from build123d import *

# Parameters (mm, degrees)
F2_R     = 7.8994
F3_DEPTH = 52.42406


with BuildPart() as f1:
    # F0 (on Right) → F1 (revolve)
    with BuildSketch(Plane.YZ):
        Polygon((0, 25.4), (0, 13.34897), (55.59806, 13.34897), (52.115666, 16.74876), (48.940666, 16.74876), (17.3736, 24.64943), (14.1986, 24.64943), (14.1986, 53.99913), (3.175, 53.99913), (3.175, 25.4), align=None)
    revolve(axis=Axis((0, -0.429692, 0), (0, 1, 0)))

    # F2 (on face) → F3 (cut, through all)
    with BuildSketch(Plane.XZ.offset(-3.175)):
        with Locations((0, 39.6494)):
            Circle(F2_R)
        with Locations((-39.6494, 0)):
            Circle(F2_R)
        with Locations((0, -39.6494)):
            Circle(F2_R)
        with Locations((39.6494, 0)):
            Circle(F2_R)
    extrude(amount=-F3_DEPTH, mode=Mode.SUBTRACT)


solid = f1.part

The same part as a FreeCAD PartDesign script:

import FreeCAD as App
import Part
import Sketcher
from FreeCAD import Vector
Q = App.Units.Quantity

doc = App.newDocument("Part")
body = doc.addObject("PartDesign::Body", "Body")

# Sketch on YZ plane
sketch1 = body.newObject("Sketcher::SketchObject", "Sketch")
sketch1.AttachmentSupport = (doc.getObject("YZ_Plane"), [""])
sketch1.MapMode = "FlatFace"
sketch1.addGeometry(Part.LineSegment(Vector(0, 25.4, 0), Vector(0, 13.3, 0)), False)
sketch1.addGeometry(Part.LineSegment(Vector(0, 13.3, 0), Vector(55.6, 13.3, 0)), False)
sketch1.addGeometry(Part.LineSegment(Vector(55.6, 13.3, 0), Vector(52.1, 16.7, 0)), False)
sketch1.addGeometry(Part.LineSegment(Vector(52.1, 16.7, 0), Vector(48.9, 16.7, 0)), False)
sketch1.addGeometry(Part.LineSegment(Vector(48.9, 16.7, 0), Vector(17.4, 24.6, 0)), False)
sketch1.addGeometry(Part.LineSegment(Vector(17.4, 24.6, 0), Vector(14.2, 24.6, 0)), False)
sketch1.addGeometry(Part.LineSegment(Vector(14.2, 24.6, 0), Vector(14.2, 54, 0)), False)
sketch1.addGeometry(Part.LineSegment(Vector(14.2, 54, 0), Vector(3.2, 54, 0)), False)
sketch1.addGeometry(Part.LineSegment(Vector(3.2, 54, 0), Vector(3.2, 25.4, 0)), False)
sketch1.addGeometry(Part.LineSegment(Vector(3.2, 25.4, 0), Vector(0, 25.4, 0)), False)
sketch1.addConstraint(Sketcher.Constraint("Coincident", 0, 2, 1, 1))
sketch1.addConstraint(Sketcher.Constraint("Coincident", 1, 2, 2, 1))
sketch1.addConstraint(Sketcher.Constraint("Coincident", 2, 2, 3, 1))
sketch1.addConstraint(Sketcher.Constraint("Coincident", 3, 2, 4, 1))
sketch1.addConstraint(Sketcher.Constraint("Coincident", 4, 2, 5, 1))
sketch1.addConstraint(Sketcher.Constraint("Coincident", 5, 2, 6, 1))
sketch1.addConstraint(Sketcher.Constraint("Coincident", 6, 2, 7, 1))
sketch1.addConstraint(Sketcher.Constraint("Coincident", 7, 2, 8, 1))
sketch1.addConstraint(Sketcher.Constraint("Coincident", 8, 2, 9, 1))
sketch1.addConstraint(Sketcher.Constraint("Coincident", 9, 2, 0, 1))
sketch1.addConstraint(Sketcher.Constraint("Vertical", 0))
sketch1.addConstraint(Sketcher.Constraint("Horizontal", 1))
sketch1.addConstraint(Sketcher.Constraint("Horizontal", 3))
sketch1.addConstraint(Sketcher.Constraint("Horizontal", 5))
sketch1.addConstraint(Sketcher.Constraint("Vertical", 6))
sketch1.addConstraint(Sketcher.Constraint("Horizontal", 7))
sketch1.addConstraint(Sketcher.Constraint("Vertical", 8))
sketch1.addConstraint(Sketcher.Constraint("Horizontal", 9))
sketch1.addConstraint(Sketcher.Constraint("PointOnObject", 0, 2, -2))
sketch1.addConstraint(Sketcher.Constraint("Equal", 3, 5))
sketch1.addConstraint(Sketcher.Constraint("Equal", 5, 9))
sketch1.addConstraint(Sketcher.Constraint("DistanceY", -1, 1, 8, 2, Q("1 in")))
sketch1.addConstraint(Sketcher.Constraint("DistanceX", 3, 2, 3, 1, Q("0.125 in")))
sketch1.addConstraint(Sketcher.Constraint("DistanceX", 7, 2, 7, 1, Q("0.434 in")))
sketch1.addConstraint(Sketcher.Constraint("DistanceX", 1, 1, 1, 2, Q("2.1889 in")))
sketch1.addConstraint(Sketcher.Constraint("DistanceY", 6, 1, 6, 2, Q("1.1555 in")))
sketch1.addConstraint(Sketcher.Constraint("DistanceY", -1, 1, 2, 2, Q("0.6594 in")))
sketch1.addConstraint(Sketcher.Constraint("DistanceY", 0, 2, 4, 2, Q("0.4449 in")))
sketch1.addConstraint(Sketcher.Constraint("DistanceY", 0, 2, 0, 1, Q("12.05103 mm")))
sketch1.addConstraint(Sketcher.Constraint("Distance", 2, Q("4.866789 mm")))
revolution = body.newObject("PartDesign::Revolution", "Revolution")
revolution.Profile = sketch1
revolution.ReferenceAxis = (sketch1, ["H_Axis"])
revolution.Angle = 360

# Sketch on XZ plane
sketch2 = body.newObject("Sketcher::SketchObject", "Sketch001")
sketch2.AttachmentSupport = (doc.getObject("XZ_Plane"), [""])
sketch2.MapMode = "FlatFace"
sketch2.AttachmentOffset = App.Placement(Vector(0, 0, -0.125 * 25.4), App.Rotation())
sketch2.addGeometry(Part.Circle(Vector(0, 40, 0), Vector(0, 0, 1), 8), False)
sketch2.addGeometry(Part.Circle(Vector(-40, 0, 0), Vector(0, 0, 1), 8), False)
sketch2.addGeometry(Part.Circle(Vector(0, -40, 0), Vector(0, 0, 1), 8), False)
sketch2.addGeometry(Part.Circle(Vector(40, 0, 0), Vector(0, 0, 1), 8), False)
sketch2.addConstraint(Sketcher.Constraint("Equal", 0, 1))
sketch2.addConstraint(Sketcher.Constraint("Equal", 1, 2))
sketch2.addConstraint(Sketcher.Constraint("Equal", 2, 3))
sketch2.addConstraint(Sketcher.Constraint("Symmetric", 0, 3, 2, 3, -1, 1))
sketch2.addConstraint(Sketcher.Constraint("Symmetric", 1, 3, 3, 3, -1, 1))
sketch2.addConstraint(Sketcher.Constraint("PointOnObject", 0, 3, -2))
sketch2.addConstraint(Sketcher.Constraint("PointOnObject", 1, 3, -1))
sketch2.addConstraint(Sketcher.Constraint("Diameter", 0, Q("0.622 in")))
sketch2.addConstraint(Sketcher.Constraint("DistanceY", -1, 1, 0, 3, Q("1.561 in")))
sketch2.addConstraint(Sketcher.Constraint("DistanceX", 1, 3, -1, 1, Q("1.561 in")))
pocket1 = body.newObject("PartDesign::Pocket", "Pocket")
pocket1.Profile = sketch2
pocket1.Type = "ThroughAll"

doc.recompute()
